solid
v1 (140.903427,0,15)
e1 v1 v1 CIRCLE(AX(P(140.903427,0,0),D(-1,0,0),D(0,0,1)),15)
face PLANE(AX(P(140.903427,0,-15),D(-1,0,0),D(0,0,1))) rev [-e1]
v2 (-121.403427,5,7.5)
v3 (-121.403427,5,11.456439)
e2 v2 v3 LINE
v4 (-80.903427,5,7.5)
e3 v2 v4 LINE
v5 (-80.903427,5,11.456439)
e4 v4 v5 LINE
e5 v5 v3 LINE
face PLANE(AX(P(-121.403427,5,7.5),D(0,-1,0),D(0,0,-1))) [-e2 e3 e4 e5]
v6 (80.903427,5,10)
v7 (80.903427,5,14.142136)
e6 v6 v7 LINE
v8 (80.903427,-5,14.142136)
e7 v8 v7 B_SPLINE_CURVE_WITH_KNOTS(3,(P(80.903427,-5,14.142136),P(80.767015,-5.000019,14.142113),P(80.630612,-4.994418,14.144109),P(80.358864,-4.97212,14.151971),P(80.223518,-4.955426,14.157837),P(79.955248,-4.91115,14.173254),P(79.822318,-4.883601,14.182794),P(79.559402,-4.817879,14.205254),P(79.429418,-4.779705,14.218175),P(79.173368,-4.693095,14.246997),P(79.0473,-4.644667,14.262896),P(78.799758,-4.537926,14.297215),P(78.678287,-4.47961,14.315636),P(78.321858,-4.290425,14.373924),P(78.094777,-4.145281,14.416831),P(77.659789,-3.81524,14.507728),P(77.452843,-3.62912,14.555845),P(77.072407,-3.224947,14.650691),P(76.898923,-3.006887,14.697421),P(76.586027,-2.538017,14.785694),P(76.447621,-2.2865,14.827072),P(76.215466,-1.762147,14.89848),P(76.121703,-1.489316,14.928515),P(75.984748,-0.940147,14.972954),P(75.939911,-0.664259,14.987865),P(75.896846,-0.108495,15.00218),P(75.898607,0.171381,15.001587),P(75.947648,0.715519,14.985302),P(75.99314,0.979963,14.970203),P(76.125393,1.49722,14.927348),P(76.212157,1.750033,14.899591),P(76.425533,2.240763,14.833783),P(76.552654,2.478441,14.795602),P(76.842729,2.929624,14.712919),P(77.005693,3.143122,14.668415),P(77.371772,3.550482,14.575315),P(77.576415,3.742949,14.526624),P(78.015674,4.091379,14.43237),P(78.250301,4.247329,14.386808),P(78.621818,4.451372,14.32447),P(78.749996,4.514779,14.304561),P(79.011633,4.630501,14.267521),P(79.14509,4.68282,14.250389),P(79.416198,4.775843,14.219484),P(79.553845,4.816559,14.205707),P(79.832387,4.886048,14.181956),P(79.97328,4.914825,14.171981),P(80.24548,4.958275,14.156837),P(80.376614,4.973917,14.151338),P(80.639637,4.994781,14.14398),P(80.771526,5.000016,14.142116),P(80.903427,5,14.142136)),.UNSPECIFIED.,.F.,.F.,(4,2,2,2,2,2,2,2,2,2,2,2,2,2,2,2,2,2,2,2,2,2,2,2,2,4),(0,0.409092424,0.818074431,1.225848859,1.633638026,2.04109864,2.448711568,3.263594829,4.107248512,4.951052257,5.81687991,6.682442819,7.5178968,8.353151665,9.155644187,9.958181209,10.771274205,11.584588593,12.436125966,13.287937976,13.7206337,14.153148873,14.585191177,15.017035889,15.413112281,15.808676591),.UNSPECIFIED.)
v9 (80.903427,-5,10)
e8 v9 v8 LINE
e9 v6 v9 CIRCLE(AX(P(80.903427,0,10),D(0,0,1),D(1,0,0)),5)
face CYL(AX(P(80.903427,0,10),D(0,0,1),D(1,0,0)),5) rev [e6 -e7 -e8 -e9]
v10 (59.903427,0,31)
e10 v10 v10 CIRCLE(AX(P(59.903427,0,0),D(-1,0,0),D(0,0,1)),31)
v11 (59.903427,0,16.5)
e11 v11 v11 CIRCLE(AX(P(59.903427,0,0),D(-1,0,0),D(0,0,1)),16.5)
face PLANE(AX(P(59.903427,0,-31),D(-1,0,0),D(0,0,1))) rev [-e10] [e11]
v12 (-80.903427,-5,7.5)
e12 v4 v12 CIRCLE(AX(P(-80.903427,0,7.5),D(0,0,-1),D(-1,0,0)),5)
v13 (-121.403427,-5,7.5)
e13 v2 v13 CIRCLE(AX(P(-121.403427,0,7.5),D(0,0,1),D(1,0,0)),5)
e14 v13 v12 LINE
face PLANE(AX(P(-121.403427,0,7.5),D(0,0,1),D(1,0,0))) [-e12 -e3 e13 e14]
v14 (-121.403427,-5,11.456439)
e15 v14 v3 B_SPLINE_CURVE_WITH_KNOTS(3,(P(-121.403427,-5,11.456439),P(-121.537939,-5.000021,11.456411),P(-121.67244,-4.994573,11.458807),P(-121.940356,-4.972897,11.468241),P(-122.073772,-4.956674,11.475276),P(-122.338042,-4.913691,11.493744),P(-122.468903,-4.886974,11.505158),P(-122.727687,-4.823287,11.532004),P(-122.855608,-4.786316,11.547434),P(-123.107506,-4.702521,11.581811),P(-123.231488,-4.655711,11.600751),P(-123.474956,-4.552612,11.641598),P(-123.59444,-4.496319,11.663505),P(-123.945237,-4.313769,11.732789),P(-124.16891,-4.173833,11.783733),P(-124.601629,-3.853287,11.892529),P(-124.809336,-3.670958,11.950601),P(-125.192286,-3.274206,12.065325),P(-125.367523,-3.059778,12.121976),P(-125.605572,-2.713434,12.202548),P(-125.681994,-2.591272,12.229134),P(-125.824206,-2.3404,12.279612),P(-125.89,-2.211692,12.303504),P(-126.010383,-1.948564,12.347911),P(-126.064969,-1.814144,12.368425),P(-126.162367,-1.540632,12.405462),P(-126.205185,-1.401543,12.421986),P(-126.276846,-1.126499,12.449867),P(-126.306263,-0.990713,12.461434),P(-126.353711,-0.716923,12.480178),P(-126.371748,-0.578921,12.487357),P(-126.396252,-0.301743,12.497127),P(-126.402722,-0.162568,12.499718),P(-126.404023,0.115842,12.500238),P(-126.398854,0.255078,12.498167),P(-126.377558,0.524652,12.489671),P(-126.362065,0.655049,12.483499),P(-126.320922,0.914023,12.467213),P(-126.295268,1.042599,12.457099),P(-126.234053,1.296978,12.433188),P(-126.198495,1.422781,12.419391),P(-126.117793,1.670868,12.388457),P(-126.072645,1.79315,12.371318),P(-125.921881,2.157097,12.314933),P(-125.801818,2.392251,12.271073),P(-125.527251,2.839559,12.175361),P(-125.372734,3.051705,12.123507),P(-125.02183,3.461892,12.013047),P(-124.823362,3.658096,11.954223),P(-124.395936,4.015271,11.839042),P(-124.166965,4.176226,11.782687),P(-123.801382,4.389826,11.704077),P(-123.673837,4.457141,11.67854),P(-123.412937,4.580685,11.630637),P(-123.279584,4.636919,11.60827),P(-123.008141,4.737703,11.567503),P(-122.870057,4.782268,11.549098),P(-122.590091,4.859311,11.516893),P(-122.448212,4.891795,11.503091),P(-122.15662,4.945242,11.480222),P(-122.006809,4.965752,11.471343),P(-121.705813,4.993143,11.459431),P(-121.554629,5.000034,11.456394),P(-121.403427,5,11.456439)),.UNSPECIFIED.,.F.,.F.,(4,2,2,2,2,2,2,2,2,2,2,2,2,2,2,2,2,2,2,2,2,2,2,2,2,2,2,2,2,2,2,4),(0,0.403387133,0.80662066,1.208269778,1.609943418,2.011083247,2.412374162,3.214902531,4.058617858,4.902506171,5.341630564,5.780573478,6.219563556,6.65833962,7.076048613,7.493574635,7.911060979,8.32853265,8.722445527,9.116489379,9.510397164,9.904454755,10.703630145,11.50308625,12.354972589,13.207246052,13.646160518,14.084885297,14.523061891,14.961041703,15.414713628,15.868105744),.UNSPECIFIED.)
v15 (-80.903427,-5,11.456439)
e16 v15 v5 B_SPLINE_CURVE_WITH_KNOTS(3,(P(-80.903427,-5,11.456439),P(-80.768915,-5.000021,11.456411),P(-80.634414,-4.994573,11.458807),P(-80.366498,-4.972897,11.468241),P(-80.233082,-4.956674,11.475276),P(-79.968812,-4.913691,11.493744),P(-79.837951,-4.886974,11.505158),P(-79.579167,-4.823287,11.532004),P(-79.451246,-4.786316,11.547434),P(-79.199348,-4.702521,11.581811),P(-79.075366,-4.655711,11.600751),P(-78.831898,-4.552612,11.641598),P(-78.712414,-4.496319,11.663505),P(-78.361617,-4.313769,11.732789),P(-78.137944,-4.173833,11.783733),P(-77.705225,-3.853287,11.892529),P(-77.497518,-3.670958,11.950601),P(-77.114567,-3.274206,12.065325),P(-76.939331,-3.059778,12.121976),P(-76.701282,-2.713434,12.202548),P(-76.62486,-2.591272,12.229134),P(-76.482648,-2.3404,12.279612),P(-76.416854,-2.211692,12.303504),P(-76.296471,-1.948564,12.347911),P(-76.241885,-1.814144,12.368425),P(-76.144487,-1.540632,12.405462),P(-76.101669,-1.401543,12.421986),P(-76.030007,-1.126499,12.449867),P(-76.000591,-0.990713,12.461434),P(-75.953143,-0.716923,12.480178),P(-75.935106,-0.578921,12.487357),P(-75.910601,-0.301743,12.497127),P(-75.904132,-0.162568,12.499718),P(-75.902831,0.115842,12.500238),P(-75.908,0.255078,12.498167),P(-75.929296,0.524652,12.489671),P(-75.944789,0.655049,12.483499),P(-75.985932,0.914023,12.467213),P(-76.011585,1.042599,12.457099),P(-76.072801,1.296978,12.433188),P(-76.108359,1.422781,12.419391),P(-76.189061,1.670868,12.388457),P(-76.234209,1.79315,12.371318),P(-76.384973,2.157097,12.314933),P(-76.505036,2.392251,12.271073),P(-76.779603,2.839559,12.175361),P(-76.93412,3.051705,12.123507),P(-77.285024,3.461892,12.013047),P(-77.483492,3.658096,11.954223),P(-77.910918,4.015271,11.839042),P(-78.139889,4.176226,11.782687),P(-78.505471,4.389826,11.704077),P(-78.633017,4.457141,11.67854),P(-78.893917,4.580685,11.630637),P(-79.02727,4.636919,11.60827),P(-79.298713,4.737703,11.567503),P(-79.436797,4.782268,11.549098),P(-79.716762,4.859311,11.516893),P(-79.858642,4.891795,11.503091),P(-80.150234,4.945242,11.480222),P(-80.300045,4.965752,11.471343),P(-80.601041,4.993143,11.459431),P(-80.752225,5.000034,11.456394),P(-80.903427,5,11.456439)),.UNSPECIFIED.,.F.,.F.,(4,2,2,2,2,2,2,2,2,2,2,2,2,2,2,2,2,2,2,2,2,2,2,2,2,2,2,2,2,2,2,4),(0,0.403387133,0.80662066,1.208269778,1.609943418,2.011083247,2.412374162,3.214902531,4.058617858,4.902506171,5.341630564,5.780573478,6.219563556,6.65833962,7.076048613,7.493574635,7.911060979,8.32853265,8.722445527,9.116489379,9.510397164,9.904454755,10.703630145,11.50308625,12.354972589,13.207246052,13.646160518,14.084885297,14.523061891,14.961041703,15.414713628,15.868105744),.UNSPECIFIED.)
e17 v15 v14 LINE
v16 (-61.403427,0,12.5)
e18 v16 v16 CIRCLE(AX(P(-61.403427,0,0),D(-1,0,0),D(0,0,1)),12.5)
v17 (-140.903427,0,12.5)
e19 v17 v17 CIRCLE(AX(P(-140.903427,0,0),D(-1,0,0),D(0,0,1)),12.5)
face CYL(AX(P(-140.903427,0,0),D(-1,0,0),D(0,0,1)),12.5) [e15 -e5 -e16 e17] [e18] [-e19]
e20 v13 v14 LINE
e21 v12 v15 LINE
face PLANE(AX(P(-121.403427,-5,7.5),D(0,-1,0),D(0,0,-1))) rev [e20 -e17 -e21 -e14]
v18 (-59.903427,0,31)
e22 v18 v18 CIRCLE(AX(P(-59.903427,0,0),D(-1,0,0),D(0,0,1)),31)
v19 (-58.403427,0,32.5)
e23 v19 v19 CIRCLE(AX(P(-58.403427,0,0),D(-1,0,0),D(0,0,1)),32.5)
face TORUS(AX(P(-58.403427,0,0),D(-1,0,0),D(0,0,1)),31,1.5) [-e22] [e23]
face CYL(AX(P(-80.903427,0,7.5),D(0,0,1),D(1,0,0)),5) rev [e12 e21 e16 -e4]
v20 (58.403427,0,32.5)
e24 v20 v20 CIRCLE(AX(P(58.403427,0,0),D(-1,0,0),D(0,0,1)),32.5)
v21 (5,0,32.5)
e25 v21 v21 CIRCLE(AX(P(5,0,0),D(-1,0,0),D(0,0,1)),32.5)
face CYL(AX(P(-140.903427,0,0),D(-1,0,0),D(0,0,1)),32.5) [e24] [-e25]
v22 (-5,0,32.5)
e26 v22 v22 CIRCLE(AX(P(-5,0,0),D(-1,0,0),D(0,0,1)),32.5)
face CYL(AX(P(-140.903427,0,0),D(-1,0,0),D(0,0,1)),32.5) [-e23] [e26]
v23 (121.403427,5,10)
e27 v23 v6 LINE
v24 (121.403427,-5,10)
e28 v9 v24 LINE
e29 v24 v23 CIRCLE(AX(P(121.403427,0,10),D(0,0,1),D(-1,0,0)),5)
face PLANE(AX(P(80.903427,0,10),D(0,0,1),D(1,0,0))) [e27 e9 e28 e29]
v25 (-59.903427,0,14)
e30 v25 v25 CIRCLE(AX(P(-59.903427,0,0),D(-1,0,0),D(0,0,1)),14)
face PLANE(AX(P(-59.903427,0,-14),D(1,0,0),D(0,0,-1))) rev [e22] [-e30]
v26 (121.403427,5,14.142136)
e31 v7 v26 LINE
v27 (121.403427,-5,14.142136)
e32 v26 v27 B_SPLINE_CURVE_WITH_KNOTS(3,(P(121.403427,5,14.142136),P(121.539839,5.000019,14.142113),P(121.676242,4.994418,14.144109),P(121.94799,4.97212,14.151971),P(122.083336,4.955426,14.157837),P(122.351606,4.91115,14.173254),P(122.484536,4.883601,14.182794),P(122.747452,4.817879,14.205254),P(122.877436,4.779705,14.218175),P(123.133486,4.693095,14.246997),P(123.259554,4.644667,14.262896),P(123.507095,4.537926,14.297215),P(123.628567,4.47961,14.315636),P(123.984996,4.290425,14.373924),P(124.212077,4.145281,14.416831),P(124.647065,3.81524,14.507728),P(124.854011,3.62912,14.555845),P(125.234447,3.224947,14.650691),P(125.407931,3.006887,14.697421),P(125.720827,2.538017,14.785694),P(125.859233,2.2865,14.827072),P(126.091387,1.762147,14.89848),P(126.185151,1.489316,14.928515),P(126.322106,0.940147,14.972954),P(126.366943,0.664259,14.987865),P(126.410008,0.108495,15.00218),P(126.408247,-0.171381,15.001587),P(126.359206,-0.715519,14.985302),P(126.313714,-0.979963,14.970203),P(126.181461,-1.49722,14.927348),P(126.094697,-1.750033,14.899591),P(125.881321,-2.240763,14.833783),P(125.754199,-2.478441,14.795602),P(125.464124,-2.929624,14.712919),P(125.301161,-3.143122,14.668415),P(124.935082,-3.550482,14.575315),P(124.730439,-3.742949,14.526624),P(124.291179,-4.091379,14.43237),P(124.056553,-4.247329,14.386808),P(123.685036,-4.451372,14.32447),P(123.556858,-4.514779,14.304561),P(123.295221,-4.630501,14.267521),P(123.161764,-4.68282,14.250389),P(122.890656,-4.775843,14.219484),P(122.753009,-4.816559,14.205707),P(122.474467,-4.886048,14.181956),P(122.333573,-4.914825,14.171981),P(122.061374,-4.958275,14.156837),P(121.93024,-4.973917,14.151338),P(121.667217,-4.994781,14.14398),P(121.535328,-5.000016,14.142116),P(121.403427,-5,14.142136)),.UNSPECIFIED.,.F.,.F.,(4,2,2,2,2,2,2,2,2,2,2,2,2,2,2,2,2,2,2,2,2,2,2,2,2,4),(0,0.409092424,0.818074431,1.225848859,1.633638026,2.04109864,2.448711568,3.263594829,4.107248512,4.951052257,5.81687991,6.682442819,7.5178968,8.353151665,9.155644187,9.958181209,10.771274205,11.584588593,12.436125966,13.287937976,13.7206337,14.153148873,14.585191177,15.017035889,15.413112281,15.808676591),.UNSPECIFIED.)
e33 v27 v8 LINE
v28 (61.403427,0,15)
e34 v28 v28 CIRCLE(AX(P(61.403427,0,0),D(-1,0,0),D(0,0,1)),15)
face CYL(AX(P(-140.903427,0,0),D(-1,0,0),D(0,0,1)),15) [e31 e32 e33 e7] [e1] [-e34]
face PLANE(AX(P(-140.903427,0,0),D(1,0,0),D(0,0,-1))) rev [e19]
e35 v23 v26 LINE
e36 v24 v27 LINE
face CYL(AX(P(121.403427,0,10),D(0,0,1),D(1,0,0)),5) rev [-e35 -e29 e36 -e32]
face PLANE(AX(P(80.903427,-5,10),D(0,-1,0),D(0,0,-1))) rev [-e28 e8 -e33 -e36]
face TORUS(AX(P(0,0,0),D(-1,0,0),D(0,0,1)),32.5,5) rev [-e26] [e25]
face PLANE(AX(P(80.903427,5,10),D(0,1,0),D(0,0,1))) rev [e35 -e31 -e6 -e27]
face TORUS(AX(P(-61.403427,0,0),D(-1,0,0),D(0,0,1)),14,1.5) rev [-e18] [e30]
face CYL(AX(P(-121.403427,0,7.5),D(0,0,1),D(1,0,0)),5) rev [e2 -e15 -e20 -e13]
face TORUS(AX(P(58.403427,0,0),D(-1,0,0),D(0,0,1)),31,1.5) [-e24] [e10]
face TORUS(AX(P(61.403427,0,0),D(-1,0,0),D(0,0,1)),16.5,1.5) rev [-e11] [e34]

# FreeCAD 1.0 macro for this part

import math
import FreeCAD as App
import Part
import Sketcher

V = App.Vector

doc = App.newDocument("Part")
params = doc.addObject("Spreadsheet::Sheet", "Params")
for row, (alias, value) in enumerate([
    ("sketch1_radius", "5 mm"),
    ("sketch1_radius2", "1.5 mm"),
    ("sketch1_height", "15 mm"),
    ("sketch1_height2", "17 mm"),
    ("sketch1_width", "79.5 mm"),
    ("revolution_angle", "360 deg"),
    ("sketch2_radius", "5 mm"),
    ("sketch2_width", "40.5 mm"),
    ("pocket1_length", "5 mm"),
    ("sketch3_radius", "5 mm"),
    ("sketch3_width", "40.5 mm"),
    ("pocket2_length", "5 mm"),
], start=1):
    params.set(f"A{row}", alias)
    params.set(f"B{row}", "=" + value)
    params.setAlias(f"B{row}", alias)

body = doc.addObject("PartDesign::Body", "Body")

# Sketch on XZ plane
sketch1 = body.newObject("Sketcher::SketchObject", "Sketch")
sketch1.AttachmentSupport = (doc.getObject("XZ_Plane"), [""])
sketch1.MapMode = "FlatFace"
sketch1.addGeometry([
    Part.LineSegment(V(-140.9, -12.5, 0), V(-140.9, 0, 0)),  # 0
    Part.LineSegment(V(-140.9, 0, 0), V(140.9, 0, 0)),  # 1
    Part.LineSegment(V(140.9, 0, 0), V(140.9, -15, 0)),  # 2
    Part.LineSegment(V(140.9, -15, 0), V(61.4, -15, 0)),  # 3
    Part.ArcOfCircle(Part.Circle(V(61.4, -16.5, 0), V(0, 0, 1), 1.5), math.radians(90), math.radians(180)),  # 4
    Part.LineSegment(V(59.9, -16.5, 0), V(59.9, -31, 0)),  # 5
    Part.ArcOfCircle(Part.Circle(V(58.4, -31, 0), V(0, 0, 1), 1.5), math.radians(-90), math.radians(0)),  # 6
    Part.LineSegment(V(58.4, -32.5, 0), V(5, -32.5, 0)),  # 7
    Part.ArcOfCircle(Part.Circle(V(0, -32.5, 0), V(0, 0, 1), 5), math.radians(0), math.radians(180)),  # 8
    Part.LineSegment(V(-5, -32.5, 0), V(-58.4, -32.5, 0)),  # 9
    Part.ArcOfCircle(Part.Circle(V(-58.4, -31, 0), V(0, 0, 1), 1.5), math.radians(180), math.radians(270)),  # 10
    Part.LineSegment(V(-59.9, -31, 0), V(-59.9, -14, 0)),  # 11
    Part.ArcOfCircle(Part.Circle(V(-61.4, -14, 0), V(0, 0, 1), 1.5), math.radians(0), math.radians(90)),  # 12
    Part.LineSegment(V(-61.4, -12.5, 0), V(-140.9, -12.5, 0)),  # 13
], False)
sketch1.addConstraint([
    Sketcher.Constraint("Coincident", 0, 2, 1, 1),
    Sketcher.Constraint("Coincident", 1, 2, 2, 1),
    Sketcher.Constraint("Coincident", 2, 2, 3, 1),
    Sketcher.Constraint("Tangent", 3, 2, 4, 1),
    Sketcher.Constraint("Tangent", 4, 2, 5, 1),
    Sketcher.Constraint("Tangent", 5, 2, 6, 2),
    Sketcher.Constraint("Tangent", 6, 1, 7, 1),
    Sketcher.Constraint("Coincident", 7, 2, 8, 1),
    Sketcher.Constraint("Coincident", 8, 2, 9, 1),
    Sketcher.Constraint("Tangent", 9, 2, 10, 2),
    Sketcher.Constraint("Tangent", 10, 1, 11, 1),
    Sketcher.Constraint("Tangent", 11, 2, 12, 1),
    Sketcher.Constraint("Tangent", 12, 2, 13, 1),
    Sketcher.Constraint("Coincident", 13, 2, 0, 1),
    Sketcher.Constraint("Vertical", 0),
    Sketcher.Constraint("Horizontal", 1),
    Sketcher.Constraint("Vertical", 2),
    Sketcher.Constraint("Horizontal", 3),
    Sketcher.Constraint("Vertical", 5),
    Sketcher.Constraint("Horizontal", 7),
    Sketcher.Constraint("Horizontal", 9),
    Sketcher.Constraint("Vertical", 11),
    Sketcher.Constraint("Horizontal", 13),
    Sketcher.Constraint("Equal", 4, 6),
    Sketcher.Constraint("Equal", 6, 10),
    Sketcher.Constraint("Equal", 10, 12),
    Sketcher.Constraint("Symmetric", 0, 2, 1, 2, -1, 1),
    Sketcher.Constraint("Symmetric", 6, 3, 10, 3, -2),
    Sketcher.Constraint("PointOnObject", 8, 3, -2),
    Sketcher.Constraint("Horizontal", 8, 3, 6, 1),
    Sketcher.Constraint("Radius", 8, 5.0),
    Sketcher.Constraint("Radius", 4, 1.5),
    Sketcher.Constraint("DistanceY", 2, 2, 2, 1, 15.0),
    Sketcher.Constraint("DistanceY", 11, 1, 11, 2, 17.0),
    Sketcher.Constraint("DistanceX", 3, 2, 3, 1, 79.5),
    Sketcher.Constraint("DistanceY", 0, 1, 0, 2, 12.5),
    Sketcher.Constraint("DistanceX", 1, 1, 1, 2, 281.806854),
])
sketch1.setExpression("Constraints[30]", "Params.sketch1_radius")
sketch1.setExpression("Constraints[31]", "Params.sketch1_radius2")
sketch1.setExpression("Constraints[32]", "Params.sketch1_height")
sketch1.setExpression("Constraints[33]", "Params.sketch1_height2")
sketch1.setExpression("Constraints[34]", "Params.sketch1_width")
revolution = body.newObject("PartDesign::Revolution", "Revolution")
revolution.Profile = sketch1
revolution.ReferenceAxis = (sketch1, ["H_Axis"])
revolution.setExpression("Angle", "Params.revolution_angle")

# Sketch on XY plane
sketch2 = body.newObject("Sketcher::SketchObject", "Sketch001")
sketch2.AttachmentSupport = (doc.getObject("XY_Plane"), [""])
sketch2.MapMode = "FlatFace"
sketch2.AttachmentOffset = App.Placement(V(0, 0, 12.5), App.Rotation())
sketch2.addGeometry([
    Part.LineSegment(V(-121, -5, 0), V(-81, -5, 0)),
    Part.ArcOfCircle(Part.Circle(V(-81, 0, 0), V(0, 0, 1), 5), math.radians(-90), math.radians(90)),
    Part.LineSegment(V(-81, 5, 0), V(-121, 5, 0)),
    Part.ArcOfCircle(Part.Circle(V(-121, 0, 0), V(0, 0, 1), 5), math.radians(90), math.radians(270)),
], False)
sketch2.addConstraint([
    Sketcher.Constraint("Tangent", 0, 2, 1, 1),
    Sketcher.Constraint("Tangent", 1, 2, 2, 1),
    Sketcher.Constraint("Tangent", 2, 2, 3, 1),
    Sketcher.Constraint("Tangent", 3, 2, 0, 1),
    Sketcher.Constraint("Horizontal", 0),
    Sketcher.Constraint("Horizontal", 2),
    Sketcher.Constraint("PointOnObject", 1, 3, -1),
    Sketcher.Constraint("Radius", 1, 5.0),
    Sketcher.Constraint("DistanceX", 0, 1, 0, 2, 40.5),
    Sketcher.Constraint("DistanceX", 1, 3, -1, 1, 80.903427),
])
sketch2.setExpression("Constraints[7]", "Params.sketch2_radius")
sketch2.setExpression("Constraints[8]", "Params.sketch2_width")
pocket1 = body.newObject("PartDesign::Pocket", "Pocket")
pocket1.Profile = sketch2
pocket1.setExpression("Length", "Params.pocket1_length")

# Sketch on XY plane
sketch3 = body.newObject("Sketcher::SketchObject", "Sketch002")
sketch3.AttachmentSupport = (doc.getObject("XY_Plane"), [""])
sketch3.MapMode = "FlatFace"
sketch3.AttachmentOffset = App.Placement(V(0, 0, 15), App.Rotation())
sketch3.addGeometry([
    Part.LineSegment(V(121, 5, 0), V(81, 5, 0)),
    Part.ArcOfCircle(Part.Circle(V(81, 0, 0), V(0, 0, 1), 5), math.radians(90), math.radians(270)),
    Part.LineSegment(V(81, -5, 0), V(121, -5, 0)),
    Part.ArcOfCircle(Part.Circle(V(121, 0, 0), V(0, 0, 1), 5), math.radians(-90), math.radians(90)),
], False)
sketch3.addConstraint([
    Sketcher.Constraint("Tangent", 0, 2, 1, 1),
    Sketcher.Constraint("Tangent", 1, 2, 2, 1),
    Sketcher.Constraint("Tangent", 2, 2, 3, 1),
    Sketcher.Constraint("Tangent", 3, 2, 0, 1),
    Sketcher.Constraint("Horizontal", 0),
    Sketcher.Constraint("Horizontal", 2),
    Sketcher.Constraint("PointOnObject", 1, 3, -1),
    Sketcher.Constraint("Radius", 1, 5.0),
    Sketcher.Constraint("DistanceX", 0, 2, 0, 1, 40.5),
    Sketcher.Constraint("DistanceX", -1, 1, 1, 3, 80.903427),
])
sketch3.setExpression("Constraints[7]", "Params.sketch3_radius")
sketch3.setExpression("Constraints[8]", "Params.sketch3_width")
pocket2 = body.newObject("PartDesign::Pocket", "Pocket001")
pocket2.Profile = sketch3
pocket2.setExpression("Length", "Params.pocket2_length")

doc.recompute()
